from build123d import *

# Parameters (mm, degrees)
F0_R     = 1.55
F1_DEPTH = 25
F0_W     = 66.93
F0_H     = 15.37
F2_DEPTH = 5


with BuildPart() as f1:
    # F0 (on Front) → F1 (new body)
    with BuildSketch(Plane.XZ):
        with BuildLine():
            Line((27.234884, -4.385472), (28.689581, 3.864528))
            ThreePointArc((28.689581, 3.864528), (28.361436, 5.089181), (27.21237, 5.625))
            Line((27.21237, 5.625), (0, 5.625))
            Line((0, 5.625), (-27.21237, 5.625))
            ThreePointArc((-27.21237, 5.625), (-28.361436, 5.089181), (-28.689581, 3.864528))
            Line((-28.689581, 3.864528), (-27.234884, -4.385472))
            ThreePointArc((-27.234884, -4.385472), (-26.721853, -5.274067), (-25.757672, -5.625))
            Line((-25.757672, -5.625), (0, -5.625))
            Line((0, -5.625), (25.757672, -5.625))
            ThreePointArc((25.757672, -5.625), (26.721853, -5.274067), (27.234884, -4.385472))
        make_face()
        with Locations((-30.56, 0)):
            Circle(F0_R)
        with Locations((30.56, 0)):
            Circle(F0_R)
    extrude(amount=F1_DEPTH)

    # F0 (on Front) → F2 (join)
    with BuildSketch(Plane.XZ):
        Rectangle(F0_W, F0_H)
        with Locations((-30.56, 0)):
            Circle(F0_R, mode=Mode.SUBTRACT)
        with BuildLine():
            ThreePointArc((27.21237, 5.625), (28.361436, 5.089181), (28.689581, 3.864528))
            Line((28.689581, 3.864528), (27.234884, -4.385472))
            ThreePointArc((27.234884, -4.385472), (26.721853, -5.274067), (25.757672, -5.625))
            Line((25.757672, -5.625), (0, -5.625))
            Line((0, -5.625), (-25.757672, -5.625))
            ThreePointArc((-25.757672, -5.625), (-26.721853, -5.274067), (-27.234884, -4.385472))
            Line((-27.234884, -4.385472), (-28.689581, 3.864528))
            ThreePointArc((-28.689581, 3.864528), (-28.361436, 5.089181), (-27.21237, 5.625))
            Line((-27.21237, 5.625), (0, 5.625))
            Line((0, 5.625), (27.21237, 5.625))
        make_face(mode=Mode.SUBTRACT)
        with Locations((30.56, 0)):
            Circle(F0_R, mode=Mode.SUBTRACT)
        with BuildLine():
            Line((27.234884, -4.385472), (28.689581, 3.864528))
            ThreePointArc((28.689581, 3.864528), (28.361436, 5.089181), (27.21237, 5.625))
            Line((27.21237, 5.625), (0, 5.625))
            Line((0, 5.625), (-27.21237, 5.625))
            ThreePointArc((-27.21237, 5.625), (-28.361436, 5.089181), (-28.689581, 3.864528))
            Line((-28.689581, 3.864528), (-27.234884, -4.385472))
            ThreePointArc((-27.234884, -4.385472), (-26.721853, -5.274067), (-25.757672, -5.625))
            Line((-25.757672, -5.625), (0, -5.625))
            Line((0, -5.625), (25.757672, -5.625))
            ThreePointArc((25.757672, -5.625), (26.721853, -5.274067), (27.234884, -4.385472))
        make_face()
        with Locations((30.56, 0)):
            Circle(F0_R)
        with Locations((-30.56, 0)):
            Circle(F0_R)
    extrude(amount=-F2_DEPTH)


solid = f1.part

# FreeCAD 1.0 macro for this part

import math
import FreeCAD as App
import Part
import Sketcher

V = App.Vector
Q = App.Units.Quantity

doc = App.newDocument("Part")
body = doc.addObject("PartDesign::Body", "Body")
body.AllowCompound = True

# Sketch on XZ plane
sketch1 = body.newObject("Sketcher::SketchObject", "Sketch")
sketch1.AttachmentSupport = (doc.getObject("XZ_Plane"), [""])
sketch1.MapMode = "FlatFace"
sketch1.addGeometry([
    Part.LineSegment(V(27.2, -4.4, 0), V(28.7, 3.9, 0)),  # 0
    Part.ArcOfCircle(Part.Circle(V(27.2, 4.1, 0), V(0, 0, 1), 1.5), math.radians(-10), math.radians(90)),  # 1
    Part.LineSegment(V(27.2, 5.6, 0), V(-27.2, 5.6, 0)),  # 2
    Part.ArcOfCircle(Part.Circle(V(-27.2, 4.1, 0), V(0, 0, 1), 1.5), math.radians(90), math.radians(190)),  # 3
    Part.LineSegment(V(-28.7, 3.9, 0), V(-27.2, -4.4, 0)),  # 4
    Part.ArcOfCircle(Part.Circle(V(-25.8, -4.1, 0), V(0, 0, 1), 1.5), math.radians(-170), math.radians(-90)),  # 5
    Part.LineSegment(V(-25.8, -5.6, 0), V(25.8, -5.6, 0)),  # 6
    Part.ArcOfCircle(Part.Circle(V(25.8, -4.1, 0), V(0, 0, 1), 1.5), math.radians(-90), math.radians(-10)),  # 7
    Part.Circle(V(-30.6, 0, 0), V(0, 0, 1), 1.6),  # 8
    Part.Circle(V(30.6, 0, 0), V(0, 0, 1), 1.6),  # 9
], False)
sketch1.addConstraint([
    Sketcher.Constraint("Tangent", 0, 2, 1, 1),
    Sketcher.Constraint("Tangent", 1, 2, 2, 1),
    Sketcher.Constraint("Tangent", 2, 2, 3, 1),
    Sketcher.Constraint("Tangent", 3, 2, 4, 1),
    Sketcher.Constraint("Tangent", 4, 2, 5, 1),
    Sketcher.Constraint("Tangent", 5, 2, 6, 1),
    Sketcher.Constraint("Tangent", 6, 2, 7, 1),
    Sketcher.Constraint("Tangent", 7, 2, 0, 1),
    Sketcher.Constraint("Horizontal", 2),
    Sketcher.Constraint("Horizontal", 6),
    Sketcher.Constraint("Equal", 1, 3),
    Sketcher.Constraint("Equal", 3, 5),
    Sketcher.Constraint("Equal", 5, 7),
    Sketcher.Constraint("Equal", 8, 9),
    Sketcher.Constraint("Symmetric", 8, 3, 9, 3, -1, 1),
    Sketcher.Constraint("Symmetric", 0, 2, 3, 2, -2),
    Sketcher.Constraint("PointOnObject", 8, 3, -1),
    Sketcher.Constraint("Diameter", 8, 3.1),
    Sketcher.Constraint("Radius", 1, 1.5),
    Sketcher.Constraint("Angle", 0, Q("80.000004 deg")),
    Sketcher.Constraint("DistanceX", 8, 3, -1, 1, 30.56),
    Sketcher.Constraint("DistanceY", 5, 3, 3, 3, 8.249999),
    Sketcher.Constraint("DistanceY", -1, 1, 1, 3, 4.125),
    Sketcher.Constraint("DistanceX", 2, 2, 2, 1, 54.42474),
])
pad1 = body.newObject("PartDesign::Pad", "Pad")
pad1.Profile = sketch1
pad1.Length = 25

# Sketch on XZ plane
sketch2 = body.newObject("Sketcher::SketchObject", "Sketch001")
sketch2.AttachmentSupport = (doc.getObject("XZ_Plane"), [""])
sketch2.MapMode = "FlatFace"
sketch2.addGeometry([
    Part.LineSegment(V(-33, 8, 0), V(-33, -8, 0)),
    Part.LineSegment(V(-33, -8, 0), V(33, -8, 0)),
    Part.LineSegment(V(33, -8, 0), V(33, 8, 0)),
    Part.LineSegment(V(33, 8, 0), V(-33, 8, 0)),
], False)
sketch2.addConstraint([
    Sketcher.Constraint("Coincident", 0, 2, 1, 1),
    Sketcher.Constraint("Coincident", 1, 2, 2, 1),
    Sketcher.Constraint("Coincident", 2, 2, 3, 1),
    Sketcher.Constraint("Coincident", 3, 2, 0, 1),
    Sketcher.Constraint("Vertical", 0),
    Sketcher.Constraint("Horizontal", 1),
    Sketcher.Constraint("Vertical", 2),
    Sketcher.Constraint("Horizontal", 3),
    Sketcher.Constraint("Symmetric", 0, 2, 2, 2, -1, 1),
    Sketcher.Constraint("DistanceX", 1, 1, 1, 2, 66.93),
    Sketcher.Constraint("DistanceY", 0, 2, 0, 1, 15.37),
])
pad2 = body.newObject("PartDesign::Pad", "Pad001")
pad2.Profile = sketch2
pad2.Length = 5
pad2.Reversed = True

doc.recompute()
